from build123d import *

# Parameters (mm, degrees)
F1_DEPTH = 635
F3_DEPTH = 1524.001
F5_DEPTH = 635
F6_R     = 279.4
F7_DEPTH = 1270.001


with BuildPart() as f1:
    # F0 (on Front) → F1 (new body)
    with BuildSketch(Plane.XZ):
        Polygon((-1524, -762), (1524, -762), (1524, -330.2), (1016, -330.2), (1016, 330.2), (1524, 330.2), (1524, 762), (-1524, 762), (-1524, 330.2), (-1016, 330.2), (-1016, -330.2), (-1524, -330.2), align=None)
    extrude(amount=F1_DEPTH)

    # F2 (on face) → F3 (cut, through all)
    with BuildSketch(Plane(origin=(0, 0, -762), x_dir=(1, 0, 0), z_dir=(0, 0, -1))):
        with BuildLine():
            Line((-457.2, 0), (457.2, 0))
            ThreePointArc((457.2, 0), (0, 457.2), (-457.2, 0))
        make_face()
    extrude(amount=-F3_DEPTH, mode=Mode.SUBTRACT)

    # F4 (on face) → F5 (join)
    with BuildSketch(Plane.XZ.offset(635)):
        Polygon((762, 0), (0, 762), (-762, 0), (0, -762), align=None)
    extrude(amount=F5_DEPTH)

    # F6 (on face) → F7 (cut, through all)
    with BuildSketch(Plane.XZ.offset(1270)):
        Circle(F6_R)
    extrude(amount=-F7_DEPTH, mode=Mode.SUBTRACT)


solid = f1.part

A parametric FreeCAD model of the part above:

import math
import FreeCAD as App
import Part
import Sketcher
Q = App.Units.Quantity

doc = App.newDocument("Part")
body = doc.addObject("PartDesign::Body", "Body")

# Sketch on XZ plane
sketch1 = body.newObject("Sketcher::SketchObject", "Sketch")
sketch1.AttachmentSupport = (doc.getObject("XZ_Plane"), [""])
sketch1.MapMode = "FlatFace"
sketch1.addGeometry(Part.LineSegment(App.Vector(-1524, -762, 0), App.Vector(1524, -762, 0)), False)
sketch1.addGeometry(Part.LineSegment(App.Vector(1524, -762, 0), App.Vector(1524, -330.2, 0)), False)
sketch1.addGeometry(Part.LineSegment(App.Vector(1524, -330.2, 0), App.Vector(1016, -330.2, 0)), False)
sketch1.addGeometry(Part.LineSegment(App.Vector(1016, -330.2, 0), App.Vector(1016, 330.2, 0)), False)
sketch1.addGeometry(Part.LineSegment(App.Vector(1016, 330.2, 0), App.Vector(1524, 330.2, 0)), False)
sketch1.addGeometry(Part.LineSegment(App.Vector(1524, 330.2, 0), App.Vector(1524, 762, 0)), False)
sketch1.addGeometry(Part.LineSegment(App.Vector(1524, 762, 0), App.Vector(-1524, 762, 0)), False)
sketch1.addGeometry(Part.LineSegment(App.Vector(-1524, 762, 0), App.Vector(-1524, 330.2, 0)), False)
sketch1.addGeometry(Part.LineSegment(App.Vector(-1524, 330.2, 0), App.Vector(-1016, 330.2, 0)), False)
sketch1.addGeometry(Part.LineSegment(App.Vector(-1016, 330.2, 0), App.Vector(-1016, -330.2, 0)), False)
sketch1.addGeometry(Part.LineSegment(App.Vector(-1016, -330.2, 0), App.Vector(-1524, -330.2, 0)), False)
sketch1.addGeometry(Part.LineSegment(App.Vector(-1524, -330.2, 0), App.Vector(-1524, -762, 0)), False)
sketch1.addConstraint(Sketcher.Constraint("Coincident", 0, 2, 1, 1))
sketch1.addConstraint(Sketcher.Constraint("Coincident", 1, 2, 2, 1))
sketch1.addConstraint(Sketcher.Constraint("Coincident", 2, 2, 3, 1))
sketch1.addConstraint(Sketcher.Constraint("Coincident", 3, 2, 4, 1))
sketch1.addConstraint(Sketcher.Constraint("Coincident", 4, 2, 5, 1))
sketch1.addConstraint(Sketcher.Constraint("Coincident", 5, 2, 6, 1))
sketch1.addConstraint(Sketcher.Constraint("Coincident", 6, 2, 7, 1))
sketch1.addConstraint(Sketcher.Constraint("Coincident", 7, 2, 8, 1))
sketch1.addConstraint(Sketcher.Constraint("Coincident", 8, 2, 9, 1))
sketch1.addConstraint(Sketcher.Constraint("Coincident", 9, 2, 10, 1))
sketch1.addConstraint(Sketcher.Constraint("Coincident", 10, 2, 11, 1))
sketch1.addConstraint(Sketcher.Constraint("Coincident", 11, 2, 0, 1))
sketch1.addConstraint(Sketcher.Constraint("Horizontal", 0))
sketch1.addConstraint(Sketcher.Constraint("Vertical", 1))
sketch1.addConstraint(Sketcher.Constraint("Horizontal", 2))
sketch1.addConstraint(Sketcher.Constraint("Vertical", 3))
sketch1.addConstraint(Sketcher.Constraint("Horizontal", 4))
sketch1.addConstraint(Sketcher.Constraint("Vertical", 5))
sketch1.addConstraint(Sketcher.Constraint("Horizontal", 6))
sketch1.addConstraint(Sketcher.Constraint("Vertical", 7))
sketch1.addConstraint(Sketcher.Constraint("Horizontal", 8))
sketch1.addConstraint(Sketcher.Constraint("Vertical", 9))
sketch1.addConstraint(Sketcher.Constraint("Horizontal", 10))
sketch1.addConstraint(Sketcher.Constraint("Vertical", 11))
sketch1.addConstraint(Sketcher.Constraint("Symmetric", 0, 2, 6, 2, -1, 1))
sketch1.addConstraint(Sketcher.Constraint("Symmetric", 2, 2, 8, 2, -1, 1))
sketch1.addConstraint(Sketcher.Constraint("Symmetric", 4, 2, 10, 2, -1, 1))
sketch1.addConstraint(Sketcher.Constraint("Symmetric", 4, 2, 7, 2, -2))
sketch1.addConstraint(Sketcher.Constraint("DistanceX", 0, 1, 0, 2, Q("120 in")))
sketch1.addConstraint(Sketcher.Constraint("DistanceX", 2, 2, 2, 1, Q("20 in")))
sketch1.addConstraint(Sketcher.Constraint("DistanceY", 1, 1, 1, 2, Q("17 in")))
sketch1.addConstraint(Sketcher.Constraint("DistanceY", 3, 1, 3, 2, Q("26 in")))
pad1 = body.newObject("PartDesign::Pad", "Pad")
pad1.Profile = sketch1
pad1.Length = Q("25 in")

# Sketch on XY plane
sketch2 = body.newObject("Sketcher::SketchObject", "Sketch001")
sketch2.AttachmentSupport = (doc.getObject("XY_Plane"), [""])
sketch2.MapMode = "FlatFace"
sketch2.AttachmentOffset = App.Placement(App.Vector(0, 0, -30 * 25.4), App.Rotation())
sketch2.addGeometry(Part.LineSegment(App.Vector(-457.2, 0, 0), App.Vector(457.2, 0, 0)), False)
sketch2.addGeometry(Part.ArcOfCircle(Part.Circle(App.Vector(0, 0, 0), App.Vector(0, 0, 1), 457.2), math.radians(180), math.radians(360)), False)
sketch2.addConstraint(Sketcher.Constraint("Coincident", 0, 1, 1, 1))
sketch2.addConstraint(Sketcher.Constraint("Coincident", 1, 2, 0, 2))
sketch2.addConstraint(Sketcher.Constraint("Horizontal", 0))
sketch2.addConstraint(Sketcher.Constraint("Coincident", 1, 3, -1, 1))
sketch2.addConstraint(Sketcher.Constraint("PointOnObject", 0, 1, -1))
sketch2.addConstraint(Sketcher.Constraint("Radius", 1, Q("18 in")))
pocket1 = body.newObject("PartDesign::Pocket", "Pocket")
pocket1.Profile = sketch2
pocket1.Type = "ThroughAll"
pocket1.Reversed = True

# Sketch on XZ plane
sketch3 = body.newObject("Sketcher::SketchObject", "Sketch002")
sketch3.AttachmentSupport = (doc.getObject("XZ_Plane"), [""])
sketch3.MapMode = "FlatFace"
sketch3.AttachmentOffset = App.Placement(App.Vector(0, 0, 25 * 25.4), App.Rotation())
sketch3.addGeometry(Part.LineSegment(App.Vector(762, 0, 0), App.Vector(0, 762, 0)), False)
sketch3.addGeometry(Part.LineSegment(App.Vector(0, 762, 0), App.Vector(-762, 0, 0)), False)
sketch3.addGeometry(Part.LineSegment(App.Vector(-762, 0, 0), App.Vector(0, -762, 0)), False)
sketch3.addGeometry(Part.LineSegment(App.Vector(0, -762, 0), App.Vector(762, 0, 0)), False)
sketch3.addConstraint(Sketcher.Constraint("Coincident", 0, 2, 1, 1))
sketch3.addConstraint(Sketcher.Constraint("Coincident", 1, 2, 2, 1))
sketch3.addConstraint(Sketcher.Constraint("Coincident", 2, 2, 3, 1))
sketch3.addConstraint(Sketcher.Constraint("Coincident", 3, 2, 0, 1))
sketch3.addConstraint(Sketcher.Constraint("Symmetric", 0, 2, 2, 2, -1, 1))
sketch3.addConstraint(Sketcher.Constraint("Symmetric", 1, 2, 3, 2, -1, 1))
sketch3.addConstraint(Sketcher.Constraint("PointOnObject", 0, 2, -2))
sketch3.addConstraint(Sketcher.Constraint("PointOnObject", 1, 2, -1))
sketch3.addConstraint(Sketcher.Constraint("Perpendicular", 0, 1))
sketch3.addConstraint(Sketcher.Constraint("DistanceY", -1, 1, 0, 2, Q("30 in")))
pad2 = body.newObject("PartDesign::Pad", "Pad001")
pad2.Profile = sketch3
pad2.Length = Q("25 in")

# Sketch on XZ plane
sketch4 = body.newObject("Sketcher::SketchObject", "Sketch003")
sketch4.AttachmentSupport = (doc.getObject("XZ_Plane"), [""])
sketch4.MapMode = "FlatFace"
sketch4.AttachmentOffset = App.Placement(App.Vector(0, 0, 50 * 25.4), App.Rotation())
sketch4.addGeometry(Part.Circle(App.Vector(0, 0, 0), App.Vector(0, 0, 1), 279.4), False)
sketch4.addConstraint(Sketcher.Constraint("Coincident", 0, 3, -1, 1))
sketch4.addConstraint(Sketcher.Constraint("Diameter", 0, Q("22 in")))
pocket2 = body.newObject("PartDesign::Pocket", "Pocket001")
pocket2.Profile = sketch4
pocket2.Type = "ThroughAll"

doc.recompute()
